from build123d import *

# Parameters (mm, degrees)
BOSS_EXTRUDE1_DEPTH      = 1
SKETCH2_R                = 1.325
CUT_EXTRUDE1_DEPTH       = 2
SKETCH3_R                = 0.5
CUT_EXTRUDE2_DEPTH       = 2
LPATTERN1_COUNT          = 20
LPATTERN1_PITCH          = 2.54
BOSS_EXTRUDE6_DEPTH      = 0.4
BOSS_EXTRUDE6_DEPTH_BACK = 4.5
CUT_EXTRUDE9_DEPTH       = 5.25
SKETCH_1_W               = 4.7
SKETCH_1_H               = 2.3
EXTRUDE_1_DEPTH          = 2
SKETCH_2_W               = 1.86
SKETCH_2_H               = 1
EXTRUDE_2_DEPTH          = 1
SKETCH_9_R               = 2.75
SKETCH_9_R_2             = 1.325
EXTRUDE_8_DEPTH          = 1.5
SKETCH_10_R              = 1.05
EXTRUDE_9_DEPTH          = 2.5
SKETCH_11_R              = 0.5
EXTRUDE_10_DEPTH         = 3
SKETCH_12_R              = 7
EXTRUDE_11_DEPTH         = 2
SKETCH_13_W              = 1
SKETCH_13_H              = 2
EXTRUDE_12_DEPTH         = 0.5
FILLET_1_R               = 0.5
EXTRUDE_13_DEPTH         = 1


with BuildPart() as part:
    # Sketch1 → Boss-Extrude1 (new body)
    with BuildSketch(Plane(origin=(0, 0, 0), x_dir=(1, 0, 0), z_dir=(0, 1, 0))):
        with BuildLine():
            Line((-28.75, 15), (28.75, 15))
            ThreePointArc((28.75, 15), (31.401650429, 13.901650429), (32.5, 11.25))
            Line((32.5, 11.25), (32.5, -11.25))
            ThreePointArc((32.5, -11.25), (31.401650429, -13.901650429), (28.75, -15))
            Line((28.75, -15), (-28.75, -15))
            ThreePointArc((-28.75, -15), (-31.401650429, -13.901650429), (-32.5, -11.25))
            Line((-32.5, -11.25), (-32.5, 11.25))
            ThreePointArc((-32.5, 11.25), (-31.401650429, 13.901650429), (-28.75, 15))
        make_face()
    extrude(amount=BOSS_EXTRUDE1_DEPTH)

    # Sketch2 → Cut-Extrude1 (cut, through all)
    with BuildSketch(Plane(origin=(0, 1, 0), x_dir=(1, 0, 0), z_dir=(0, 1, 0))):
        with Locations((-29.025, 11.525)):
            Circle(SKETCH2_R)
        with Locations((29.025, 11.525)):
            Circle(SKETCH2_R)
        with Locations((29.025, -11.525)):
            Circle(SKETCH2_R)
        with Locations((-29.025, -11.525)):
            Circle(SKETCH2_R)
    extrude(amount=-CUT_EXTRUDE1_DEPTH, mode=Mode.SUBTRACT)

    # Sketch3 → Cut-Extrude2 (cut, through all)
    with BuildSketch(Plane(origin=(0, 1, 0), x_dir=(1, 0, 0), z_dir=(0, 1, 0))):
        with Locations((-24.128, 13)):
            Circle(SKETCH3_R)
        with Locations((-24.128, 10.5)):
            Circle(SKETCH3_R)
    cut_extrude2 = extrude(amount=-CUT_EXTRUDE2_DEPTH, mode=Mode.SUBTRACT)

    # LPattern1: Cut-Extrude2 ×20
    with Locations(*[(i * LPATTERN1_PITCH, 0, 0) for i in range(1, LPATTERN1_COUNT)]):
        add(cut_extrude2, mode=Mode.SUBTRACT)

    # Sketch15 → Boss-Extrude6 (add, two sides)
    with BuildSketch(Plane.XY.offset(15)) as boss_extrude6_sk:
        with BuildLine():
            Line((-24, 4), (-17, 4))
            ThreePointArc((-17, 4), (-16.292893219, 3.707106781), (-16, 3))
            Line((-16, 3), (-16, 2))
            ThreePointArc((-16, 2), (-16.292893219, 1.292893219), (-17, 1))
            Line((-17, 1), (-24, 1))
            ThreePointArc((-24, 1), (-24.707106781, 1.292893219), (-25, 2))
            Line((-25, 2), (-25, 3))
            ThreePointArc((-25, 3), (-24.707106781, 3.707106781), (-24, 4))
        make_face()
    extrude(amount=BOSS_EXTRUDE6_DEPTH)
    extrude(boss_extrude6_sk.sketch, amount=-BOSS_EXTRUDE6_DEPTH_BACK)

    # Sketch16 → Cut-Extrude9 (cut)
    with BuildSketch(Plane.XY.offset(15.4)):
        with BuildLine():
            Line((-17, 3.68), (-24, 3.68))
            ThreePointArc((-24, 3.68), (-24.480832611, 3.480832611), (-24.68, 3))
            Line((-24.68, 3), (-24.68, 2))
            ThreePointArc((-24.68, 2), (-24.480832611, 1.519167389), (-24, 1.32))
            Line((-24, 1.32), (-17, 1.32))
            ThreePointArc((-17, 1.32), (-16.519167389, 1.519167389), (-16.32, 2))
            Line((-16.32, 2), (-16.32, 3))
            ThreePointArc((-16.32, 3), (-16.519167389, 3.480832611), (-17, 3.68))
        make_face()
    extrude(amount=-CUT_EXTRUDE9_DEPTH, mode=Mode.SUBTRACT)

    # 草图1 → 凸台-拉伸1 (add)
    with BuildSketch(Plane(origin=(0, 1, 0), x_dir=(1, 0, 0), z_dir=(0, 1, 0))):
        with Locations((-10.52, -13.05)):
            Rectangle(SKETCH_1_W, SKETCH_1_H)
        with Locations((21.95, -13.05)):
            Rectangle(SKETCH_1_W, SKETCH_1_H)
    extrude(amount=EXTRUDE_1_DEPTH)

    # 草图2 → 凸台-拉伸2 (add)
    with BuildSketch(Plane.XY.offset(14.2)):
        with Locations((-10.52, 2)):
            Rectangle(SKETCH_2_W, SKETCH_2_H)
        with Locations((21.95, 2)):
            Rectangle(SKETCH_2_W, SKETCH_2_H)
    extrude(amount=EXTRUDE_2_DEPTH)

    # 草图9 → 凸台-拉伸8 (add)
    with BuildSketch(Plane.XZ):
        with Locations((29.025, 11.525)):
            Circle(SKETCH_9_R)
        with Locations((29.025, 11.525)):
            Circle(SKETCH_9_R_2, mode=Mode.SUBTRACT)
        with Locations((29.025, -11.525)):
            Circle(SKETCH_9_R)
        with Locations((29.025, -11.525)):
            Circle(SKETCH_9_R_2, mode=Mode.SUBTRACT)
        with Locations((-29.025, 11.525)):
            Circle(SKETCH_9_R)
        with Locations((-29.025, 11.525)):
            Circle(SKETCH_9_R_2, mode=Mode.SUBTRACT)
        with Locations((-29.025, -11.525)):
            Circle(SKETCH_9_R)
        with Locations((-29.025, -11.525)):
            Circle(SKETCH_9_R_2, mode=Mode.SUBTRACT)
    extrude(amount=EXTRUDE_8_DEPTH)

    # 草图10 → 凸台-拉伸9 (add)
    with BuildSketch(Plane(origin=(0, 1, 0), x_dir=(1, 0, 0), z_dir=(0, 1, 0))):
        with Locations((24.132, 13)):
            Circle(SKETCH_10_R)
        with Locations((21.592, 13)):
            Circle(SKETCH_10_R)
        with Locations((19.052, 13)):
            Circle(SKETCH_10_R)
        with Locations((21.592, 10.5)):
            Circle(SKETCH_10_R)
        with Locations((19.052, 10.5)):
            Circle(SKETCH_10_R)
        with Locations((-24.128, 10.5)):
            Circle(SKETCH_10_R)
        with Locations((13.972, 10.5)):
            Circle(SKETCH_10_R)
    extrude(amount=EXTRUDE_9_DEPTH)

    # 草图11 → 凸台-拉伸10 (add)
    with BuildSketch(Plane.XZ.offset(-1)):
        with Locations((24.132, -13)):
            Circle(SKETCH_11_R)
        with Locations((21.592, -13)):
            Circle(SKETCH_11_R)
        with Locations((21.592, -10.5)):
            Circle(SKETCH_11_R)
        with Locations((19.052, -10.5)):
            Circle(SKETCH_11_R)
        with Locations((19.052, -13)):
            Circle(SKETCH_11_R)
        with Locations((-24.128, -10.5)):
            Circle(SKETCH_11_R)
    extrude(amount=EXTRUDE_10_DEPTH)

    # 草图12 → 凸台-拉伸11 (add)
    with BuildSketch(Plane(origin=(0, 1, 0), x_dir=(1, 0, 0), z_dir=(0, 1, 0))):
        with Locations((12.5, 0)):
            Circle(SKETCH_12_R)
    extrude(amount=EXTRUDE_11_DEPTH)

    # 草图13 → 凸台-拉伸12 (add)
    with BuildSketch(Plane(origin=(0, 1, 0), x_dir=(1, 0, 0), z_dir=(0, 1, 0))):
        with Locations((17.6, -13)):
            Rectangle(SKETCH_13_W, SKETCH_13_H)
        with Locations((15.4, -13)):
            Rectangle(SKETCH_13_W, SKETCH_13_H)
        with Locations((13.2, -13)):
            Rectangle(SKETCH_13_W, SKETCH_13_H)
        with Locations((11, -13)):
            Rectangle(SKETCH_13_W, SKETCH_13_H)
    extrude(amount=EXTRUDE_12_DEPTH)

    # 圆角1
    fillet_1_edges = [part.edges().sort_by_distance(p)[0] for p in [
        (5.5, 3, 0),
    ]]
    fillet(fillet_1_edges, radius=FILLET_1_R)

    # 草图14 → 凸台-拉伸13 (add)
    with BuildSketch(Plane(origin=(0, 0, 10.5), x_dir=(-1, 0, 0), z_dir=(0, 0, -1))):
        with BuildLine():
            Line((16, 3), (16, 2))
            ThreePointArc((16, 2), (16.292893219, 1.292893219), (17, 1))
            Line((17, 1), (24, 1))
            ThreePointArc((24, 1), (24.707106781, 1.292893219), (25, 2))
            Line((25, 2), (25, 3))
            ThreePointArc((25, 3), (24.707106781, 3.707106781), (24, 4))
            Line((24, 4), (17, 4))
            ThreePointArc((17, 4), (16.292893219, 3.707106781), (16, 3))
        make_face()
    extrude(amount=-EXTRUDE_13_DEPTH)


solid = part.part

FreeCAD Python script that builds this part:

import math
import FreeCAD as App
import Part
import Sketcher

V = App.Vector
Q = App.Units.Quantity


def edges_at(feature, points):
    """Names of the edges that pass closest to the given points."""
    edges = feature.Shape.Edges
    near = lambda p: min(range(len(edges)), key=lambda i: edges[i].distToShape(Part.Vertex(*p))[0])
    return sorted({f"Edge{near(p) + 1}" for p in points})

doc = App.newDocument("Part")
params = doc.addObject("Spreadsheet::Sheet", "Params")
for row, (alias, value) in enumerate([
    ("sketch1_radius", "3.75 mm"),
    ("sketch1_width", "57.5 mm"),
    ("sketch1_height", "22.5 mm"),
    ("pad1_length", "1 mm"),
    ("sketch2_diameter", "2.65 mm"),
    ("sketch3_diameter", "1 mm"),
    ("linearpattern_pitch", "2.54 mm"),
    ("sketch4_radius", "1 mm"),
    ("sketch4_width", "7 mm"),
    ("sketch4_height", "1 mm"),
    ("pad2_length", "0.4 mm"),
    ("pad2_length2", "4.5 mm"),
    ("sketch5_width", "7 mm"),
    ("sketch5_height", "1 mm"),
    ("sketch5_radius", "0.68 mm"),
    ("pocket3_length", "5.25 mm"),
    ("sketch6_width", "4.7 mm"),
    ("sketch6_height", "2.3 mm"),
    ("pad3_length", "2 mm"),
    ("sketch7_height", "1 mm"),
    ("sketch7_width", "1.86 mm"),
    ("pad4_length", "1 mm"),
    ("sketch8_diameter", "5.5 mm"),
    ("sketch8_diameter2", "2.65 mm"),
    ("pad5_length", "1.5 mm"),
    ("sketch9_diameter", "2.1 mm"),
    ("pad6_length", "2.5 mm"),
    ("sketch10_diameter", "1 mm"),
    ("pad7_length", "3 mm"),
    ("sketch11_diameter", "14 mm"),
    ("pad8_length", "2 mm"),
    ("sketch12_width", "1 mm"),
    ("sketch12_height", "2 mm"),
    ("pad9_length", "0.5 mm"),
    ("fillet_radius", "0.5 mm"),
    ("sketch13_radius", "1 mm"),
    ("sketch13_width", "7 mm"),
    ("sketch13_height", "1 mm"),
    ("pad10_length", "1 mm"),
], start=1):
    params.set(f"A{row}", alias)
    params.set(f"B{row}", "=" + value)
    params.setAlias(f"B{row}", alias)

body = doc.addObject("PartDesign::Body", "Body")

# Sketch on XZ plane
sketch1 = body.newObject("Sketcher::SketchObject", "Sketch")
sketch1.AttachmentSupport = (doc.getObject("XZ_Plane"), [""])
sketch1.MapMode = "FlatFace"
sketch1.addGeometry([
    Part.LineSegment(V(28.8, -15, 0), V(-28.8, -15, 0)),  # 0
    Part.ArcOfCircle(Part.Circle(V(-28.7, -11.2, 0), V(0, 0, 1), 3.8), math.radians(-180), math.radians(-90)),  # 1
    Part.LineSegment(V(-32.5, -11.2, 0), V(-32.5, 11.2, 0)),  # 2
    Part.ArcOfCircle(Part.Circle(V(-28.7, 11.2, 0), V(0, 0, 1), 3.8), math.radians(90), math.radians(180)),  # 3
    Part.LineSegment(V(-28.8, 15, 0), V(28.8, 15, 0)),  # 4
    Part.ArcOfCircle(Part.Circle(V(28.7, 11.2, 0), V(0, 0, 1), 3.8), math.radians(0), math.radians(90)),  # 5
    Part.LineSegment(V(32.5, 11.2, 0), V(32.5, -11.2, 0)),  # 6
    Part.ArcOfCircle(Part.Circle(V(28.7, -11.2, 0), V(0, 0, 1), 3.8), math.radians(-90), math.radians(0)),  # 7
], False)
sketch1.addConstraint([
    Sketcher.Constraint("Tangent", 0, 2, 1, 2),
    Sketcher.Constraint("Tangent", 1, 1, 2, 1),
    Sketcher.Constraint("Tangent", 2, 2, 3, 2),
    Sketcher.Constraint("Tangent", 3, 1, 4, 1),
    Sketcher.Constraint("Tangent", 4, 2, 5, 2),
    Sketcher.Constraint("Tangent", 5, 1, 6, 1),
    Sketcher.Constraint("Tangent", 6, 2, 7, 2),
    Sketcher.Constraint("Tangent", 7, 1, 0, 1),
    Sketcher.Constraint("Horizontal", 0),
    Sketcher.Constraint("Vertical", 2),
    Sketcher.Constraint("Horizontal", 4),
    Sketcher.Constraint("Vertical", 6),
    Sketcher.Constraint("Equal", 1, 3),
    Sketcher.Constraint("Equal", 3, 5),
    Sketcher.Constraint("Equal", 5, 7),
    Sketcher.Constraint("Symmetric", 1, 3, 5, 3, -1, 1),
    Sketcher.Constraint("Radius", 1, Q("3.75 mm")),
    Sketcher.Constraint("DistanceX", 0, 2, 0, 1, Q("57.5 mm")),
    Sketcher.Constraint("DistanceY", 2, 1, 2, 2, Q("22.5 mm")),
])
sketch1.setExpression("Constraints[16]", "Params.sketch1_radius")
sketch1.setExpression("Constraints[17]", "Params.sketch1_width")
sketch1.setExpression("Constraints[18]", "Params.sketch1_height")
pad1 = body.newObject("PartDesign::Pad", "Pad")
pad1.Profile = sketch1
pad1.setExpression("Length", "Params.pad1_length")
pad1.Reversed = True

# Sketch on XZ plane
sketch2 = body.newObject("Sketcher::SketchObject", "Sketch001")
sketch2.AttachmentSupport = (doc.getObject("XZ_Plane"), [""])
sketch2.MapMode = "FlatFace"
sketch2.AttachmentOffset = App.Placement(V(0, 0, -1), App.Rotation())
sketch2.addGeometry([
    Part.Circle(V(-29, -11.5, 0), V(0, 0, 1), 1.3),
    Part.Circle(V(29, -11.5, 0), V(0, 0, 1), 1.3),
    Part.Circle(V(29, 11.5, 0), V(0, 0, 1), 1.3),
    Part.Circle(V(-29, 11.5, 0), V(0, 0, 1), 1.3),
], False)
sketch2.addConstraint([
    Sketcher.Constraint("Equal", 0, 1),
    Sketcher.Constraint("Equal", 1, 2),
    Sketcher.Constraint("Equal", 2, 3),
    Sketcher.Constraint("Symmetric", 0, 3, 2, 3, -1, 1),
    Sketcher.Constraint("Symmetric", 1, 3, 3, 3, -1, 1),
    Sketcher.Constraint("Symmetric", 0, 3, 1, 3, -2),
    Sketcher.Constraint("Diameter", 0, Q("2.65 mm")),
    Sketcher.Constraint("DistanceX", 0, 3, 1, 3, Q("58.05 mm")),
    Sketcher.Constraint("DistanceY", 1, 3, 2, 3, Q("23.05 mm")),
])
sketch2.setExpression("Constraints[6]", "Params.sketch2_diameter")
pocket1 = body.newObject("PartDesign::Pocket", "Pocket")
pocket1.Profile = sketch2
pocket1.Type = "ThroughAll"
pocket1.Reversed = True

# Sketch on XZ plane
sketch3 = body.newObject("Sketcher::SketchObject", "Sketch002")
sketch3.AttachmentSupport = (doc.getObject("XZ_Plane"), [""])
sketch3.MapMode = "FlatFace"
sketch3.AttachmentOffset = App.Placement(V(0, 0, -1), App.Rotation())
sketch3.addGeometry([
    Part.Circle(V(-24.1, -13, 0), V(0, 0, 1), 0.5),
    Part.Circle(V(-24.1, -10.5, 0), V(0, 0, 1), 0.5),
], False)
sketch3.addConstraint([
    Sketcher.Constraint("Equal", 0, 1),
    Sketcher.Constraint("Vertical", 0, 3, 1, 3),
    Sketcher.Constraint("Diameter", 0, Q("1 mm")),
    Sketcher.Constraint("DistanceY", 0, 3, -1, 1, Q("13 mm")),
    Sketcher.Constraint("DistanceY", 1, 3, -1, 1, Q("10.5 mm")),
    Sketcher.Constraint("DistanceX", 0, 3, -1, 1, Q("24.128 mm")),
])
sketch3.setExpression("Constraints[2]", "Params.sketch3_diameter")
pocket2 = body.newObject("PartDesign::Pocket", "Pocket001")
pocket2.Profile = sketch3
pocket2.Type = "ThroughAll"
pocket2.Reversed = True
doc.recompute()

linearpattern = body.newObject("PartDesign::LinearPattern", "LinearPattern")
linearpattern.Originals = [pocket2]
linearpattern.Direction = (doc.getObject("X_Axis"), [""])
linearpattern.Mode = "offset"
linearpattern.setExpression("Offset", "Params.linearpattern_pitch")
linearpattern.Occurrences = 20
body.Tip = linearpattern

# Sketch on XY plane
sketch4 = body.newObject("Sketcher::SketchObject", "Sketch003")
sketch4.AttachmentSupport = (doc.getObject("XY_Plane"), [""])
sketch4.MapMode = "FlatFace"
sketch4.AttachmentOffset = App.Placement(V(0, 0, 15), App.Rotation())
sketch4.addGeometry([
    Part.LineSegment(V(-17, 4, 0), V(-24, 4, 0)),  # 0
    Part.ArcOfCircle(Part.Circle(V(-24, 3, 0), V(0, 0, 1), 1), math.radians(90), math.radians(180)),  # 1
    Part.LineSegment(V(-25, 3, 0), V(-25, 2, 0)),  # 2
    Part.ArcOfCircle(Part.Circle(V(-24, 2, 0), V(0, 0, 1), 1), math.radians(-180), math.radians(-90)),  # 3
    Part.LineSegment(V(-24, 1, 0), V(-17, 1, 0)),  # 4
    Part.ArcOfCircle(Part.Circle(V(-17, 2, 0), V(0, 0, 1), 1), math.radians(-90), math.radians(0)),  # 5
    Part.LineSegment(V(-16, 2, 0), V(-16, 3, 0)),  # 6
    Part.ArcOfCircle(Part.Circle(V(-17, 3, 0), V(0, 0, 1), 1), math.radians(0), math.radians(90)),  # 7
], False)
sketch4.addConstraint([
    Sketcher.Constraint("Tangent", 0, 2, 1, 1),
    Sketcher.Constraint("Tangent", 1, 2, 2, 1),
    Sketcher.Constraint("Tangent", 2, 2, 3, 1),
    Sketcher.Constraint("Tangent", 3, 2, 4, 1),
    Sketcher.Constraint("Tangent", 4, 2, 5, 1),
    Sketcher.Constraint("Tangent", 5, 2, 6, 1),
    Sketcher.Constraint("Tangent", 6, 2, 7, 1),
    Sketcher.Constraint("Tangent", 7, 2, 0, 1),
    Sketcher.Constraint("Horizontal", 0),
    Sketcher.Constraint("Vertical", 2),
    Sketcher.Constraint("Horizontal", 4),
    Sketcher.Constraint("Vertical", 6),
    Sketcher.Constraint("Equal", 1, 3),
    Sketcher.Constraint("Equal", 3, 5),
    Sketcher.Constraint("Equal", 5, 7),
    Sketcher.Constraint("Radius", 1, Q("1 mm")),
    Sketcher.Constraint("DistanceX", 0, 2, 0, 1, Q("7 mm")),
    Sketcher.Constraint("DistanceY", 2, 2, 2, 1, Q("1 mm")),
    Sketcher.Constraint("DistanceX", 1, 3, -1, 1, Q("24 mm")),
    Sketcher.Constraint("DistanceY", -1, 1, 1, 3, Q("3 mm")),
])
sketch4.setExpression("Constraints[15]", "Params.sketch4_radius")
sketch4.setExpression("Constraints[16]", "Params.sketch4_width")
sketch4.setExpression("Constraints[17]", "Params.sketch4_height")
pad2 = body.newObject("PartDesign::Pad", "Pad001")
pad2.Profile = sketch4
pad2.Type = "TwoLengths"
pad2.setExpression("Length", "Params.pad2_length")
pad2.setExpression("Length2", "Params.pad2_length2")

# Sketch on XY plane
sketch5 = body.newObject("Sketcher::SketchObject", "Sketch004")
sketch5.AttachmentSupport = (doc.getObject("XY_Plane"), [""])
sketch5.MapMode = "FlatFace"
sketch5.AttachmentOffset = App.Placement(V(0, 0, 15.4), App.Rotation())
sketch5.addGeometry([
    Part.LineSegment(V(-17, 3.7, 0), V(-24, 3.7, 0)),  # 0
    Part.ArcOfCircle(Part.Circle(V(-24, 3, 0), V(0, 0, 1), 0.7), math.radians(90), math.radians(180)),  # 1
    Part.LineSegment(V(-24.7, 3, 0), V(-24.7, 2, 0)),  # 2
    Part.ArcOfCircle(Part.Circle(V(-24, 2, 0), V(0, 0, 1), 0.7), math.radians(-180), math.radians(-90)),  # 3
    Part.LineSegment(V(-24, 1.3, 0), V(-17, 1.3, 0)),  # 4
    Part.ArcOfCircle(Part.Circle(V(-17, 2, 0), V(0, 0, 1), 0.7), math.radians(-90), math.radians(0)),  # 5
    Part.LineSegment(V(-16.3, 2, 0), V(-16.3, 3, 0)),  # 6
    Part.ArcOfCircle(Part.Circle(V(-17, 3, 0), V(0, 0, 1), 0.7), math.radians(0), math.radians(90)),  # 7
], False)
sketch5.addConstraint([
    Sketcher.Constraint("Tangent", 0, 2, 1, 1),
    Sketcher.Constraint("Tangent", 1, 2, 2, 1),
    Sketcher.Constraint("Tangent", 2, 2, 3, 1),
    Sketcher.Constraint("Tangent", 3, 2, 4, 1),
    Sketcher.Constraint("Tangent", 4, 2, 5, 1),
    Sketcher.Constraint("Tangent", 5, 2, 6, 1),
    Sketcher.Constraint("Tangent", 6, 2, 7, 1),
    Sketcher.Constraint("Tangent", 7, 2, 0, 1),
    Sketcher.Constraint("Horizontal", 0),
    Sketcher.Constraint("Vertical", 2),
    Sketcher.Constraint("Horizontal", 4),
    Sketcher.Constraint("Vertical", 6),
    Sketcher.Constraint("Equal", 1, 3),
    Sketcher.Constraint("Equal", 3, 5),
    Sketcher.Constraint("Equal", 5, 7),
    Sketcher.Constraint("DistanceX", 0, 2, 0, 1, Q("7 mm")),
    Sketcher.Constraint("DistanceY", 2, 2, 2, 1, Q("1 mm")),
    Sketcher.Constraint("Radius", 1, Q("0.68 mm")),
    Sketcher.Constraint("DistanceX", 1, 3, -1, 1, Q("24 mm")),
    Sketcher.Constraint("DistanceY", -1, 1, 1, 3, Q("3 mm")),
])
sketch5.setExpression("Constraints[15]", "Params.sketch5_width")
sketch5.setExpression("Constraints[16]", "Params.sketch5_height")
sketch5.setExpression("Constraints[17]", "Params.sketch5_radius")
pocket3 = body.newObject("PartDesign::Pocket", "Pocket002")
pocket3.Profile = sketch5
pocket3.setExpression("Length", "Params.pocket3_length")

# Sketch on XZ plane
sketch6 = body.newObject("Sketcher::SketchObject", "Sketch005")
sketch6.AttachmentSupport = (doc.getObject("XZ_Plane"), [""])
sketch6.MapMode = "FlatFace"
sketch6.AttachmentOffset = App.Placement(V(0, 0, -1), App.Rotation())
sketch6.addGeometry([
    Part.LineSegment(V(-12.9, 11.9, 0), V(-12.9, 14.2, 0)),  # 0
    Part.LineSegment(V(-12.9, 14.2, 0), V(-8.2, 14.2, 0)),  # 1
    Part.LineSegment(V(-8.2, 14.2, 0), V(-8.2, 11.9, 0)),  # 2
    Part.LineSegment(V(-8.2, 11.9, 0), V(-12.9, 11.9, 0)),  # 3
    Part.LineSegment(V(19.6, 11.9, 0), V(19.6, 14.2, 0)),  # 4
    Part.LineSegment(V(19.6, 14.2, 0), V(24.3, 14.2, 0)),  # 5
    Part.LineSegment(V(24.3, 14.2, 0), V(24.3, 11.9, 0)),  # 6
    Part.LineSegment(V(24.3, 11.9, 0), V(19.6, 11.9, 0)),  # 7
], False)
sketch6.addConstraint([
    Sketcher.Constraint("Coincident", 0, 2, 1, 1),
    Sketcher.Constraint("Coincident", 1, 2, 2, 1),
    Sketcher.Constraint("Coincident", 2, 2, 3, 1),
    Sketcher.Constraint("Coincident", 3, 2, 0, 1),
    Sketcher.Constraint("Coincident", 4, 2, 5, 1),
    Sketcher.Constraint("Coincident", 5, 2, 6, 1),
    Sketcher.Constraint("Coincident", 6, 2, 7, 1),
    Sketcher.Constraint("Coincident", 7, 2, 4, 1),
    Sketcher.Constraint("Vertical", 0),
    Sketcher.Constraint("Horizontal", 1),
    Sketcher.Constraint("Vertical", 2),
    Sketcher.Constraint("Horizontal", 3),
    Sketcher.Constraint("Vertical", 4),
    Sketcher.Constraint("Horizontal", 5),
    Sketcher.Constraint("Vertical", 6),
    Sketcher.Constraint("Horizontal", 7),
    Sketcher.Constraint("Horizontal", 1, 2, 4, 2),
    Sketcher.Constraint("Horizontal", 3, 2, 6, 2),
    Sketcher.Constraint("Equal", 3, 5),
    Sketcher.Constraint("DistanceX", 1, 1, 1, 2, Q("4.7 mm")),
    Sketcher.Constraint("DistanceY", 0, 1, 0, 2, Q("2.3 mm")),
    Sketcher.Constraint("DistanceY", -1, 1, 0, 2, Q("14.2 mm")),
    Sketcher.Constraint("DistanceX", -1, 1, 4, 2, Q("19.6 mm")),
    Sketcher.Constraint("DistanceX", 0, 2, -1, 1, Q("12.87 mm")),
])
sketch6.setExpression("Constraints[19]", "Params.sketch6_width")
sketch6.setExpression("Constraints[20]", "Params.sketch6_height")
pad3 = body.newObject("PartDesign::Pad", "Pad002")
pad3.Profile = sketch6
pad3.setExpression("Length", "Params.pad3_length")
pad3.Reversed = True

# Sketch on XY plane
sketch7 = body.newObject("Sketcher::SketchObject", "Sketch006")
sketch7.AttachmentSupport = (doc.getObject("XY_Plane"), [""])
sketch7.MapMode = "FlatFace"
sketch7.AttachmentOffset = App.Placement(V(0, 0, 14.2), App.Rotation())
sketch7.addGeometry([
    Part.LineSegment(V(-11.4, 2.5, 0), V(-11.4, 1.5, 0)),  # 0
    Part.LineSegment(V(-11.4, 1.5, 0), V(-9.6, 1.5, 0)),  # 1
    Part.LineSegment(V(-9.6, 1.5, 0), V(-9.6, 2.5, 0)),  # 2
    Part.LineSegment(V(-9.6, 2.5, 0), V(-11.4, 2.5, 0)),  # 3
    Part.LineSegment(V(21, 2.5, 0), V(21, 1.5, 0)),  # 4
    Part.LineSegment(V(21, 1.5, 0), V(22.9, 1.5, 0)),  # 5
    Part.LineSegment(V(22.9, 1.5, 0), V(22.9, 2.5, 0)),  # 6
    Part.LineSegment(V(22.9, 2.5, 0), V(21, 2.5, 0)),  # 7
], False)
sketch7.addConstraint([
    Sketcher.Constraint("Coincident", 0, 2, 1, 1),
    Sketcher.Constraint("Coincident", 1, 2, 2, 1),
    Sketcher.Constraint("Coincident", 2, 2, 3, 1),
    Sketcher.Constraint("Coincident", 3, 2, 0, 1),
    Sketcher.Constraint("Coincident", 4, 2, 5, 1),
    Sketcher.Constraint("Coincident", 5, 2, 6, 1),
    Sketcher.Constraint("Coincident", 6, 2, 7, 1),
    Sketcher.Constraint("Coincident", 7, 2, 4, 1),
    Sketcher.Constraint("Vertical", 0),
    Sketcher.Constraint("Horizontal", 1),
    Sketcher.Constraint("Vertical", 2),
    Sketcher.Constraint("Horizontal", 3),
    Sketcher.Constraint("Vertical", 4),
    Sketcher.Constraint("Horizontal", 5),
    Sketcher.Constraint("Vertical", 6),
    Sketcher.Constraint("Horizontal", 7),
    Sketcher.Constraint("Horizontal", 1, 2, 4, 2),
    Sketcher.Constraint("Horizontal", 3, 2, 6, 2),
    Sketcher.Constraint("Equal", 3, 5),
    Sketcher.Constraint("DistanceY", 0, 2, 0, 1, Q("1 mm")),
    Sketcher.Constraint("DistanceX", 1, 1, 1, 2, Q("1.86 mm")),
    Sketcher.Constraint("DistanceY", -1, 1, 0, 2, Q("1.5 mm")),
    Sketcher.Constraint("DistanceX", 0, 2, -1, 1, Q("11.45 mm")),
    Sketcher.Constraint("DistanceX", -1, 1, 4, 2, Q("21.02 mm")),
])
sketch7.setExpression("Constraints[19]", "Params.sketch7_height")
sketch7.setExpression("Constraints[20]", "Params.sketch7_width")
pad4 = body.newObject("PartDesign::Pad", "Pad003")
pad4.Profile = sketch7
pad4.setExpression("Length", "Params.pad4_length")

# Sketch on XZ plane
sketch8 = body.newObject("Sketcher::SketchObject", "Sketch007")
sketch8.AttachmentSupport = (doc.getObject("XZ_Plane"), [""])
sketch8.MapMode = "FlatFace"
sketch8.addGeometry([
    Part.Circle(V(29, 11.5, 0), V(0, 0, 1), 2.8),  # 0
    Part.Circle(V(29, 11.5, 0), V(0, 0, 1), 1.3),  # 1
    Part.Circle(V(29, -11.5, 0), V(0, 0, 1), 2.8),  # 2
    Part.Circle(V(29, -11.5, 0), V(0, 0, 1), 1.3),  # 3
    Part.Circle(V(-29, 11.5, 0), V(0, 0, 1), 2.8),  # 4
    Part.Circle(V(-29, 11.5, 0), V(0, 0, 1), 1.3),  # 5
    Part.Circle(V(-29, -11.5, 0), V(0, 0, 1), 2.8),  # 6
    Part.Circle(V(-29, -11.5, 0), V(0, 0, 1), 1.3),  # 7
], False)
sketch8.addConstraint([
    Sketcher.Constraint("Coincident", 1, 3, 0, 3),
    Sketcher.Constraint("Coincident", 3, 3, 2, 3),
    Sketcher.Constraint("Coincident", 5, 3, 4, 3),
    Sketcher.Constraint("Coincident", 7, 3, 6, 3),
    Sketcher.Constraint("Equal", 0, 2),
    Sketcher.Constraint("Equal", 1, 3),
    Sketcher.Constraint("Equal", 2, 4),
    Sketcher.Constraint("Equal", 3, 5),
    Sketcher.Constraint("Equal", 4, 6),
    Sketcher.Constraint("Equal", 5, 7),
    Sketcher.Constraint("Symmetric", 2, 3, 4, 3, -1, 1),
    Sketcher.Constraint("Symmetric", 0, 3, 6, 3, -1, 1),
    Sketcher.Constraint("Symmetric", 0, 3, 4, 3, -2),
    Sketcher.Constraint("Diameter", 0, Q("5.5 mm")),
    Sketcher.Constraint("Diameter", 1, Q("2.65 mm")),
    Sketcher.Constraint("DistanceY", 2, 3, 0, 3, Q("23.05 mm")),
    Sketcher.Constraint("DistanceX", 4, 3, 0, 3, Q("58.05 mm")),
])
sketch8.setExpression("Constraints[13]", "Params.sketch8_diameter")
sketch8.setExpression("Constraints[14]", "Params.sketch8_diameter2")
pad5 = body.newObject("PartDesign::Pad", "Pad004")
pad5.Profile = sketch8
pad5.setExpression("Length", "Params.pad5_length")

# Sketch on XZ plane
sketch9 = body.newObject("Sketcher::SketchObject", "Sketch008")
sketch9.AttachmentSupport = (doc.getObject("XZ_Plane"), [""])
sketch9.MapMode = "FlatFace"
sketch9.AttachmentOffset = App.Placement(V(0, 0, -1), App.Rotation())
sketch9.addGeometry([
    Part.Circle(V(24.1, -13, 0), V(0, 0, 1), 1.1),  # 0
    Part.Circle(V(21.6, -13, 0), V(0, 0, 1), 1.1),  # 1
    Part.Circle(V(19.1, -13, 0), V(0, 0, 1), 1.1),  # 2
    Part.Circle(V(21.6, -10.5, 0), V(0, 0, 1), 1.1),  # 3
    Part.Circle(V(19.1, -10.5, 0), V(0, 0, 1), 1.1),  # 4
    Part.Circle(V(-24.1, -10.5, 0), V(0, 0, 1), 1.1),  # 5
    Part.Circle(V(14, -10.5, 0), V(0, 0, 1), 1.1),  # 6
], False)
sketch9.addConstraint([
    Sketcher.Constraint("Equal", 0, 1),
    Sketcher.Constraint("Equal", 1, 2),
    Sketcher.Constraint("Equal", 2, 3),
    Sketcher.Constraint("Equal", 3, 4),
    Sketcher.Constraint("Equal", 4, 5),
    Sketcher.Constraint("Equal", 5, 6),
    Sketcher.Constraint("Horizontal", 0, 3, 1, 3),
    Sketcher.Constraint("Horizontal", 1, 3, 2, 3),
    Sketcher.Constraint("Horizontal", 3, 3, 4, 3),
    Sketcher.Constraint("Horizontal", 4, 3, 5, 3),
    Sketcher.Constraint("Horizontal", 5, 3, 6, 3),
    Sketcher.Constraint("Vertical", 1, 3, 3, 3),
    Sketcher.Constraint("Vertical", 2, 3, 4, 3),
    Sketcher.Constraint("Diameter", 0, Q("2.1 mm")),
    Sketcher.Constraint("DistanceY", 0, 3, -1, 1, Q("13 mm")),
    Sketcher.Constraint("DistanceY", 3, 3, -1, 1, Q("10.5 mm")),
    Sketcher.Constraint("DistanceX", 1, 3, 0, 3, Q("2.54 mm")),
    Sketcher.Constraint("DistanceX", 2, 3, 1, 3, Q("2.54 mm")),
    Sketcher.Constraint("DistanceX", 5, 3, 4, 3, Q("43.18 mm")),
    Sketcher.Constraint("DistanceX", 6, 3, 4, 3, Q("5.08 mm")),
    Sketcher.Constraint("DistanceX", -1, 1, 0, 3, Q("24.132 mm")),
])
sketch9.setExpression("Constraints[13]", "Params.sketch9_diameter")
pad6 = body.newObject("PartDesign::Pad", "Pad005")
pad6.Profile = sketch9
pad6.setExpression("Length", "Params.pad6_length")
pad6.Reversed = True

# Sketch on XZ plane
sketch10 = body.newObject("Sketcher::SketchObject", "Sketch009")
sketch10.AttachmentSupport = (doc.getObject("XZ_Plane"), [""])
sketch10.MapMode = "FlatFace"
sketch10.AttachmentOffset = App.Placement(V(0, 0, -1), App.Rotation())
sketch10.addGeometry([
    Part.Circle(V(24.1, -13, 0), V(0, 0, 1), 0.5),  # 0
    Part.Circle(V(21.6, -13, 0), V(0, 0, 1), 0.5),  # 1
    Part.Circle(V(21.6, -10.5, 0), V(0, 0, 1), 0.5),  # 2
    Part.Circle(V(19.1, -10.5, 0), V(0, 0, 1), 0.5),  # 3
    Part.Circle(V(19.1, -13, 0), V(0, 0, 1), 0.5),  # 4
    Part.Circle(V(-24.1, -10.5, 0), V(0, 0, 1), 0.5),  # 5
], False)
sketch10.addConstraint([
    Sketcher.Constraint("Equal", 0, 1),
    Sketcher.Constraint("Equal", 1, 2),
    Sketcher.Constraint("Equal", 2, 3),
    Sketcher.Constraint("Equal", 3, 4),
    Sketcher.Constraint("Equal", 4, 5),
    Sketcher.Constraint("Horizontal", 0, 3, 1, 3),
    Sketcher.Constraint("Horizontal", 2, 3, 3, 3),
    Sketcher.Constraint("Horizontal", 1, 3, 4, 3),
    Sketcher.Constraint("Horizontal", 3, 3, 5, 3),
    Sketcher.Constraint("Vertical", 1, 3, 2, 3),
    Sketcher.Constraint("Vertical", 3, 3, 4, 3),
    Sketcher.Constraint("Diameter", 0, Q("1 mm")),
    Sketcher.Constraint("DistanceY", 0, 3, -1, 1, Q("13 mm")),
    Sketcher.Constraint("DistanceY", 2, 3, -1, 1, Q("10.5 mm")),
    Sketcher.Constraint("DistanceX", 1, 3, 0, 3, Q("2.54 mm")),
    Sketcher.Constraint("DistanceX", 3, 3, 2, 3, Q("2.54 mm")),
    Sketcher.Constraint("DistanceX", 5, 3, 3, 3, Q("43.18 mm")),
    Sketcher.Constraint("DistanceX", -1, 1, 0, 3, Q("24.132 mm")),
])
sketch10.setExpression("Constraints[11]", "Params.sketch10_diameter")
pad7 = body.newObject("PartDesign::Pad", "Pad006")
pad7.Profile = sketch10
pad7.setExpression("Length", "Params.pad7_length")

# Sketch on XZ plane
sketch11 = body.newObject("Sketcher::SketchObject", "Sketch010")
sketch11.AttachmentSupport = (doc.getObject("XZ_Plane"), [""])
sketch11.MapMode = "FlatFace"
sketch11.AttachmentOffset = App.Placement(V(0, 0, -1), App.Rotation())
sketch11.addGeometry(Part.Circle(V(12, 0, 0), V(0, 0, 1), 7), False)
sketch11.addConstraint([
    Sketcher.Constraint("PointOnObject", 0, 3, -1),
    Sketcher.Constraint("Diameter", 0, Q("14 mm")),
    Sketcher.Constraint("DistanceX", -1, 1, 0, 3, Q("12.5 mm")),
])
sketch11.setExpression("Constraints[1]", "Params.sketch11_diameter")
pad8 = body.newObject("PartDesign::Pad", "Pad007")
pad8.Profile = sketch11
pad8.setExpression("Length", "Params.pad8_length")
pad8.Reversed = True

# Sketch on XZ plane
sketch12 = body.newObject("Sketcher::SketchObject", "Sketch011")
sketch12.AttachmentSupport = (doc.getObject("XZ_Plane"), [""])
sketch12.MapMode = "FlatFace"
sketch12.AttachmentOffset = App.Placement(V(0, 0, -1), App.Rotation())
sketch12.addGeometry([
    Part.LineSegment(V(17.1, 12, 0), V(17.1, 14, 0)),  # 0
    Part.LineSegment(V(17.1, 14, 0), V(18.1, 14, 0)),  # 1
    Part.LineSegment(V(18.1, 14, 0), V(18.1, 12, 0)),  # 2
    Part.LineSegment(V(18.1, 12, 0), V(17.1, 12, 0)),  # 3
    Part.LineSegment(V(14.9, 12, 0), V(14.9, 14, 0)),  # 4
    Part.LineSegment(V(14.9, 14, 0), V(15.9, 14, 0)),  # 5
    Part.LineSegment(V(15.9, 14, 0), V(15.9, 12, 0)),  # 6
    Part.LineSegment(V(15.9, 12, 0), V(14.9, 12, 0)),  # 7
    Part.LineSegment(V(12.7, 12, 0), V(12.7, 14, 0)),  # 8
    Part.LineSegment(V(12.7, 14, 0), V(13.7, 14, 0)),  # 9
    Part.LineSegment(V(13.7, 14, 0), V(13.7, 12, 0)),  # 10
    Part.LineSegment(V(13.7, 12, 0), V(12.7, 12, 0)),  # 11
    Part.LineSegment(V(10.5, 12, 0), V(10.5, 14, 0)),  # 12
    Part.LineSegment(V(10.5, 14, 0), V(11.5, 14, 0)),  # 13
    Part.LineSegment(V(11.5, 14, 0), V(11.5, 12, 0)),  # 14
    Part.LineSegment(V(11.5, 12, 0), V(10.5, 12, 0)),  # 15
], False)
sketch12.addConstraint([
    Sketcher.Constraint("Coincident", 0, 2, 1, 1),
    Sketcher.Constraint("Coincident", 1, 2, 2, 1),
    Sketcher.Constraint("Coincident", 2, 2, 3, 1),
    Sketcher.Constraint("Coincident", 3, 2, 0, 1),
    Sketcher.Constraint("Coincident", 4, 2, 5, 1),
    Sketcher.Constraint("Coincident", 5, 2, 6, 1),
    Sketcher.Constraint("Coincident", 6, 2, 7, 1),
    Sketcher.Constraint("Coincident", 7, 2, 4, 1),
    Sketcher.Constraint("Coincident", 8, 2, 9, 1),
    Sketcher.Constraint("Coincident", 9, 2, 10, 1),
    Sketcher.Constraint("Coincident", 10, 2, 11, 1),
    Sketcher.Constraint("Coincident", 11, 2, 8, 1),
    Sketcher.Constraint("Coincident", 12, 2, 13, 1),
    Sketcher.Constraint("Coincident", 13, 2, 14, 1),
    Sketcher.Constraint("Coincident", 14, 2, 15, 1),
    Sketcher.Constraint("Coincident", 15, 2, 12, 1),
    Sketcher.Constraint("Vertical", 0),
    Sketcher.Constraint("Horizontal", 1),
    Sketcher.Constraint("Vertical", 2),
    Sketcher.Constraint("Horizontal", 3),
    Sketcher.Constraint("Vertical", 4),
    Sketcher.Constraint("Horizontal", 5),
    Sketcher.Constraint("Vertical", 6),
    Sketcher.Constraint("Horizontal", 7),
    Sketcher.Constraint("Vertical", 8),
    Sketcher.Constraint("Horizontal", 9),
    Sketcher.Constraint("Vertical", 10),
    Sketcher.Constraint("Horizontal", 11),
    Sketcher.Constraint("Vertical", 12),
    Sketcher.Constraint("Horizontal", 13),
    Sketcher.Constraint("Vertical", 14),
    Sketcher.Constraint("Horizontal", 15),
    Sketcher.Constraint("Horizontal", 1, 2, 4, 2),
    Sketcher.Constraint("Horizontal", 3, 2, 6, 2),
    Sketcher.Constraint("Horizontal", 5, 2, 8, 2),
    Sketcher.Constraint("Horizontal", 7, 2, 10, 2),
    Sketcher.Constraint("Horizontal", 9, 2, 12, 2),
    Sketcher.Constraint("Horizontal", 11, 2, 14, 2),
    Sketcher.Constraint("Equal", 3, 5),
    Sketcher.Constraint("Equal", 7, 9),
    Sketcher.Constraint("Equal", 11, 13),
    Sketcher.Constraint("DistanceX", 1, 1, 1, 2, Q("1 mm")),
    Sketcher.Constraint("DistanceY", 0, 1, 0, 2, Q("2 mm")),
    Sketcher.Constraint("DistanceY", -1, 1, 0, 2, Q("14 mm")),
    Sketcher.Constraint("DistanceX", -1, 1, 0, 2, Q("17.1 mm")),
    Sketcher.Constraint("DistanceX", -1, 1, 4, 2, Q("14.9 mm")),
    Sketcher.Constraint("DistanceX", -1, 1, 8, 2, Q("12.7 mm")),
    Sketcher.Constraint("DistanceX", -1, 1, 12, 2, Q("10.5 mm")),
])
sketch12.setExpression("Constraints[41]", "Params.sketch12_width")
sketch12.setExpression("Constraints[42]", "Params.sketch12_height")
pad9 = body.newObject("PartDesign::Pad", "Pad008")
pad9.Profile = sketch12
pad9.setExpression("Length", "Params.pad9_length")
pad9.Reversed = True
doc.recompute()

fillet = body.newObject("PartDesign::Fillet", "Fillet")
fillet.Base = (pad9, edges_at(pad9, [(5.5, 3, 0)]))
fillet.setExpression("Radius", "Params.fillet_radius")

# Sketch on XY plane
sketch13 = body.newObject("Sketcher::SketchObject", "Sketch012")
sketch13.AttachmentSupport = (doc.getObject("XY_Plane"), [""])
sketch13.MapMode = "FlatFace"
sketch13.AttachmentOffset = App.Placement(V(0, 0, 10.5), App.Rotation())
sketch13.addGeometry([
    Part.LineSegment(V(-16, 3, 0), V(-16, 2, 0)),  # 0
    Part.ArcOfCircle(Part.Circle(V(-17, 2, 0), V(0, 0, 1), 1), math.radians(-90), math.radians(0)),  # 1
    Part.LineSegment(V(-17, 1, 0), V(-24, 1, 0)),  # 2
    Part.ArcOfCircle(Part.Circle(V(-24, 2, 0), V(0, 0, 1), 1), math.radians(-180), math.radians(-90)),  # 3
    Part.LineSegment(V(-25, 2, 0), V(-25, 3, 0)),  # 4
    Part.ArcOfCircle(Part.Circle(V(-24, 3, 0), V(0, 0, 1), 1), math.radians(90), math.radians(180)),  # 5
    Part.LineSegment(V(-24, 4, 0), V(-17, 4, 0)),  # 6
    Part.ArcOfCircle(Part.Circle(V(-17, 3, 0), V(0, 0, 1), 1), math.radians(0), math.radians(90)),  # 7
], False)
sketch13.addConstraint([
    Sketcher.Constraint("Tangent", 0, 2, 1, 2),
    Sketcher.Constraint("Tangent", 1, 1, 2, 1),
    Sketcher.Constraint("Tangent", 2, 2, 3, 2),
    Sketcher.Constraint("Tangent", 3, 1, 4, 1),
    Sketcher.Constraint("Tangent", 4, 2, 5, 2),
    Sketcher.Constraint("Tangent", 5, 1, 6, 1),
    Sketcher.Constraint("Tangent", 6, 2, 7, 2),
    Sketcher.Constraint("Tangent", 7, 1, 0, 1),
    Sketcher.Constraint("Vertical", 0),
    Sketcher.Constraint("Horizontal", 2),
    Sketcher.Constraint("Vertical", 4),
    Sketcher.Constraint("Horizontal", 6),
    Sketcher.Constraint("Equal", 1, 3),
    Sketcher.Constraint("Equal", 3, 5),
    Sketcher.Constraint("Equal", 5, 7),
    Sketcher.Constraint("Radius", 1, Q("1 mm")),
    Sketcher.Constraint("DistanceX", 2, 2, 2, 1, Q("7 mm")),
    Sketcher.Constraint("DistanceY", 0, 2, 0, 1, Q("1 mm")),
    Sketcher.Constraint("DistanceX", 1, 3, -1, 1, Q("17 mm")),
    Sketcher.Constraint("DistanceY", -1, 1, 1, 3, Q("2 mm")),
])
sketch13.setExpression("Constraints[15]", "Params.sketch13_radius")
sketch13.setExpression("Constraints[16]", "Params.sketch13_width")
sketch13.setExpression("Constraints[17]", "Params.sketch13_height")
pad10 = body.newObject("PartDesign::Pad", "Pad009")
pad10.Profile = sketch13
pad10.setExpression("Length", "Params.pad10_length")

doc.recompute()
